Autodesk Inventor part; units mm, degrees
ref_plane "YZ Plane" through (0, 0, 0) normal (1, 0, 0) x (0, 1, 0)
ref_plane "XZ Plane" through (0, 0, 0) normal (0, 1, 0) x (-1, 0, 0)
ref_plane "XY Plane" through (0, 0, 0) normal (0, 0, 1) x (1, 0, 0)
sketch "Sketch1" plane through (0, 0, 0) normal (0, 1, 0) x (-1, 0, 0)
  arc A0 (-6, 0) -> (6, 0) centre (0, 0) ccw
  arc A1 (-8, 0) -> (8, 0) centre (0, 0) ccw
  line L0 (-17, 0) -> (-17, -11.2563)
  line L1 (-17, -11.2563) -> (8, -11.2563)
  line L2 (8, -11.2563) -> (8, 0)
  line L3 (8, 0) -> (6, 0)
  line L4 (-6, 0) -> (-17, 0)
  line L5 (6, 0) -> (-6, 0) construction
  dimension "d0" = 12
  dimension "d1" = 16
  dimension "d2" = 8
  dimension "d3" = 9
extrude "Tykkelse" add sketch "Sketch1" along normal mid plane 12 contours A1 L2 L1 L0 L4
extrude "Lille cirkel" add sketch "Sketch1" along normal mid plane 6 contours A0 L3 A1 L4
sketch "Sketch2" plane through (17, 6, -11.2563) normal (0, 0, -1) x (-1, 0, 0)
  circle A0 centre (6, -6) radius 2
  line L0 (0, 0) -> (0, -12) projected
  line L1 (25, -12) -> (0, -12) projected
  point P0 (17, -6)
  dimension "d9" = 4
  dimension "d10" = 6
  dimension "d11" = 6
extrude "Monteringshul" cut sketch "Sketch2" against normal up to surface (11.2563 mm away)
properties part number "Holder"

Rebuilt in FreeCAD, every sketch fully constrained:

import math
import FreeCAD as App
import Part
import Sketcher
Q = App.Units.Quantity

doc = App.newDocument("Part")
body = doc.addObject("PartDesign::Body", "Body")

sketch1 = body.newObject("Sketcher::SketchObject", "Sketch")
sketch1.AttachmentSupport = (doc.getObject("XZ_Plane"), [""])
sketch1.MapMode = "FlatFace"
sketch1.addGeometry([
    Part.ArcOfCircle(Part.Circle(App.Vector(0, 0, 0), App.Vector(0, 0, 1), 8), math.radians(180), math.radians(360)),
    Part.LineSegment(App.Vector(8, 0, 0), App.Vector(17, 0, 0)),
    Part.LineSegment(App.Vector(17, 0, 0), App.Vector(17, -11, 0)),
    Part.LineSegment(App.Vector(17, -11, 0), App.Vector(-8, -11, 0)),
    Part.LineSegment(App.Vector(-8, -11, 0), App.Vector(-8, 0, 0)),
], False)
sketch1.addConstraint([
    Sketcher.Constraint("Coincident", 0, 2, 1, 1),
    Sketcher.Constraint("Coincident", 1, 2, 2, 1),
    Sketcher.Constraint("Coincident", 2, 2, 3, 1),
    Sketcher.Constraint("Coincident", 3, 2, 4, 1),
    Sketcher.Constraint("Tangent", 4, 2, 0, 1),
    Sketcher.Constraint("Horizontal", 1),
    Sketcher.Constraint("Vertical", 2),
    Sketcher.Constraint("Horizontal", 3),
    Sketcher.Constraint("Vertical", 4),
    Sketcher.Constraint("Coincident", 0, 3, -1, 1),
    Sketcher.Constraint("PointOnObject", 0, 2, -1),
    Sketcher.Constraint("Radius", 0, Q("8 mm")),
    Sketcher.Constraint("DistanceX", 1, 1, 1, 2, Q("9 mm")),
    Sketcher.Constraint("DistanceY", 2, 2, 2, 1, Q("11.2563 mm")),
])
pad1 = body.newObject("PartDesign::Pad", "Pad")
pad1.Profile = sketch1
pad1.Length = 12
pad1.Midplane = True

sketch2 = body.newObject("Sketcher::SketchObject", "Sketch001")
sketch2.AttachmentSupport = (doc.getObject("XZ_Plane"), [""])
sketch2.MapMode = "FlatFace"
sketch2.addGeometry([
    Part.ArcOfCircle(Part.Circle(App.Vector(0, 0, 0), App.Vector(0, 0, 1), 6), math.radians(180), math.radians(360)),
    Part.LineSegment(App.Vector(6, 0, 0), App.Vector(8, 0, 0)),
    Part.ArcOfCircle(Part.Circle(App.Vector(0, 0, 0), App.Vector(0, 0, 1), 8), math.radians(180), math.radians(360)),
    Part.LineSegment(App.Vector(-8, 0, 0), App.Vector(-6, 0, 0)),
], False)
sketch2.addConstraint([
    Sketcher.Constraint("Coincident", 0, 2, 1, 1),
    Sketcher.Constraint("Coincident", 1, 2, 2, 2),
    Sketcher.Constraint("Coincident", 2, 1, 3, 1),
    Sketcher.Constraint("Coincident", 3, 2, 0, 1),
    Sketcher.Constraint("Horizontal", 1),
    Sketcher.Constraint("Horizontal", 3),
    Sketcher.Constraint("Coincident", 0, 3, -1, 1),
    Sketcher.Constraint("Coincident", 2, 3, -1, 1),
    Sketcher.Constraint("PointOnObject", 0, 2, -1),
    Sketcher.Constraint("PointOnObject", 2, 1, -1),
    Sketcher.Constraint("Radius", 0, Q("6 mm")),
    Sketcher.Constraint("Radius", 2, Q("8 mm")),
])
pad2 = body.newObject("PartDesign::Pad", "Pad001")
pad2.Profile = sketch2
pad2.Length = 6
pad2.Midplane = True

sketch3 = body.newObject("Sketcher::SketchObject", "Sketch002")
sketch3.AttachmentSupport = (doc.getObject("XY_Plane"), [""])
sketch3.MapMode = "FlatFace"
sketch3.AttachmentOffset = App.Placement(App.Vector(0, 0, -11.2563), App.Rotation())
sketch3.addGeometry(Part.Circle(App.Vector(11, 0, 0), App.Vector(0, 0, 1), 2), False)
sketch3.addConstraint([
    Sketcher.Constraint("PointOnObject", 0, 3, -1),
    Sketcher.Constraint("Diameter", 0, Q("4 mm")),
    Sketcher.Constraint("DistanceX", -1, 1, 0, 3, Q("11 mm")),
])
pocket1 = body.newObject("PartDesign::Pocket", "Pocket")
pocket1.Profile = sketch3
pocket1.Length = 11.2563
pocket1.Reversed = True

doc.recompute()
